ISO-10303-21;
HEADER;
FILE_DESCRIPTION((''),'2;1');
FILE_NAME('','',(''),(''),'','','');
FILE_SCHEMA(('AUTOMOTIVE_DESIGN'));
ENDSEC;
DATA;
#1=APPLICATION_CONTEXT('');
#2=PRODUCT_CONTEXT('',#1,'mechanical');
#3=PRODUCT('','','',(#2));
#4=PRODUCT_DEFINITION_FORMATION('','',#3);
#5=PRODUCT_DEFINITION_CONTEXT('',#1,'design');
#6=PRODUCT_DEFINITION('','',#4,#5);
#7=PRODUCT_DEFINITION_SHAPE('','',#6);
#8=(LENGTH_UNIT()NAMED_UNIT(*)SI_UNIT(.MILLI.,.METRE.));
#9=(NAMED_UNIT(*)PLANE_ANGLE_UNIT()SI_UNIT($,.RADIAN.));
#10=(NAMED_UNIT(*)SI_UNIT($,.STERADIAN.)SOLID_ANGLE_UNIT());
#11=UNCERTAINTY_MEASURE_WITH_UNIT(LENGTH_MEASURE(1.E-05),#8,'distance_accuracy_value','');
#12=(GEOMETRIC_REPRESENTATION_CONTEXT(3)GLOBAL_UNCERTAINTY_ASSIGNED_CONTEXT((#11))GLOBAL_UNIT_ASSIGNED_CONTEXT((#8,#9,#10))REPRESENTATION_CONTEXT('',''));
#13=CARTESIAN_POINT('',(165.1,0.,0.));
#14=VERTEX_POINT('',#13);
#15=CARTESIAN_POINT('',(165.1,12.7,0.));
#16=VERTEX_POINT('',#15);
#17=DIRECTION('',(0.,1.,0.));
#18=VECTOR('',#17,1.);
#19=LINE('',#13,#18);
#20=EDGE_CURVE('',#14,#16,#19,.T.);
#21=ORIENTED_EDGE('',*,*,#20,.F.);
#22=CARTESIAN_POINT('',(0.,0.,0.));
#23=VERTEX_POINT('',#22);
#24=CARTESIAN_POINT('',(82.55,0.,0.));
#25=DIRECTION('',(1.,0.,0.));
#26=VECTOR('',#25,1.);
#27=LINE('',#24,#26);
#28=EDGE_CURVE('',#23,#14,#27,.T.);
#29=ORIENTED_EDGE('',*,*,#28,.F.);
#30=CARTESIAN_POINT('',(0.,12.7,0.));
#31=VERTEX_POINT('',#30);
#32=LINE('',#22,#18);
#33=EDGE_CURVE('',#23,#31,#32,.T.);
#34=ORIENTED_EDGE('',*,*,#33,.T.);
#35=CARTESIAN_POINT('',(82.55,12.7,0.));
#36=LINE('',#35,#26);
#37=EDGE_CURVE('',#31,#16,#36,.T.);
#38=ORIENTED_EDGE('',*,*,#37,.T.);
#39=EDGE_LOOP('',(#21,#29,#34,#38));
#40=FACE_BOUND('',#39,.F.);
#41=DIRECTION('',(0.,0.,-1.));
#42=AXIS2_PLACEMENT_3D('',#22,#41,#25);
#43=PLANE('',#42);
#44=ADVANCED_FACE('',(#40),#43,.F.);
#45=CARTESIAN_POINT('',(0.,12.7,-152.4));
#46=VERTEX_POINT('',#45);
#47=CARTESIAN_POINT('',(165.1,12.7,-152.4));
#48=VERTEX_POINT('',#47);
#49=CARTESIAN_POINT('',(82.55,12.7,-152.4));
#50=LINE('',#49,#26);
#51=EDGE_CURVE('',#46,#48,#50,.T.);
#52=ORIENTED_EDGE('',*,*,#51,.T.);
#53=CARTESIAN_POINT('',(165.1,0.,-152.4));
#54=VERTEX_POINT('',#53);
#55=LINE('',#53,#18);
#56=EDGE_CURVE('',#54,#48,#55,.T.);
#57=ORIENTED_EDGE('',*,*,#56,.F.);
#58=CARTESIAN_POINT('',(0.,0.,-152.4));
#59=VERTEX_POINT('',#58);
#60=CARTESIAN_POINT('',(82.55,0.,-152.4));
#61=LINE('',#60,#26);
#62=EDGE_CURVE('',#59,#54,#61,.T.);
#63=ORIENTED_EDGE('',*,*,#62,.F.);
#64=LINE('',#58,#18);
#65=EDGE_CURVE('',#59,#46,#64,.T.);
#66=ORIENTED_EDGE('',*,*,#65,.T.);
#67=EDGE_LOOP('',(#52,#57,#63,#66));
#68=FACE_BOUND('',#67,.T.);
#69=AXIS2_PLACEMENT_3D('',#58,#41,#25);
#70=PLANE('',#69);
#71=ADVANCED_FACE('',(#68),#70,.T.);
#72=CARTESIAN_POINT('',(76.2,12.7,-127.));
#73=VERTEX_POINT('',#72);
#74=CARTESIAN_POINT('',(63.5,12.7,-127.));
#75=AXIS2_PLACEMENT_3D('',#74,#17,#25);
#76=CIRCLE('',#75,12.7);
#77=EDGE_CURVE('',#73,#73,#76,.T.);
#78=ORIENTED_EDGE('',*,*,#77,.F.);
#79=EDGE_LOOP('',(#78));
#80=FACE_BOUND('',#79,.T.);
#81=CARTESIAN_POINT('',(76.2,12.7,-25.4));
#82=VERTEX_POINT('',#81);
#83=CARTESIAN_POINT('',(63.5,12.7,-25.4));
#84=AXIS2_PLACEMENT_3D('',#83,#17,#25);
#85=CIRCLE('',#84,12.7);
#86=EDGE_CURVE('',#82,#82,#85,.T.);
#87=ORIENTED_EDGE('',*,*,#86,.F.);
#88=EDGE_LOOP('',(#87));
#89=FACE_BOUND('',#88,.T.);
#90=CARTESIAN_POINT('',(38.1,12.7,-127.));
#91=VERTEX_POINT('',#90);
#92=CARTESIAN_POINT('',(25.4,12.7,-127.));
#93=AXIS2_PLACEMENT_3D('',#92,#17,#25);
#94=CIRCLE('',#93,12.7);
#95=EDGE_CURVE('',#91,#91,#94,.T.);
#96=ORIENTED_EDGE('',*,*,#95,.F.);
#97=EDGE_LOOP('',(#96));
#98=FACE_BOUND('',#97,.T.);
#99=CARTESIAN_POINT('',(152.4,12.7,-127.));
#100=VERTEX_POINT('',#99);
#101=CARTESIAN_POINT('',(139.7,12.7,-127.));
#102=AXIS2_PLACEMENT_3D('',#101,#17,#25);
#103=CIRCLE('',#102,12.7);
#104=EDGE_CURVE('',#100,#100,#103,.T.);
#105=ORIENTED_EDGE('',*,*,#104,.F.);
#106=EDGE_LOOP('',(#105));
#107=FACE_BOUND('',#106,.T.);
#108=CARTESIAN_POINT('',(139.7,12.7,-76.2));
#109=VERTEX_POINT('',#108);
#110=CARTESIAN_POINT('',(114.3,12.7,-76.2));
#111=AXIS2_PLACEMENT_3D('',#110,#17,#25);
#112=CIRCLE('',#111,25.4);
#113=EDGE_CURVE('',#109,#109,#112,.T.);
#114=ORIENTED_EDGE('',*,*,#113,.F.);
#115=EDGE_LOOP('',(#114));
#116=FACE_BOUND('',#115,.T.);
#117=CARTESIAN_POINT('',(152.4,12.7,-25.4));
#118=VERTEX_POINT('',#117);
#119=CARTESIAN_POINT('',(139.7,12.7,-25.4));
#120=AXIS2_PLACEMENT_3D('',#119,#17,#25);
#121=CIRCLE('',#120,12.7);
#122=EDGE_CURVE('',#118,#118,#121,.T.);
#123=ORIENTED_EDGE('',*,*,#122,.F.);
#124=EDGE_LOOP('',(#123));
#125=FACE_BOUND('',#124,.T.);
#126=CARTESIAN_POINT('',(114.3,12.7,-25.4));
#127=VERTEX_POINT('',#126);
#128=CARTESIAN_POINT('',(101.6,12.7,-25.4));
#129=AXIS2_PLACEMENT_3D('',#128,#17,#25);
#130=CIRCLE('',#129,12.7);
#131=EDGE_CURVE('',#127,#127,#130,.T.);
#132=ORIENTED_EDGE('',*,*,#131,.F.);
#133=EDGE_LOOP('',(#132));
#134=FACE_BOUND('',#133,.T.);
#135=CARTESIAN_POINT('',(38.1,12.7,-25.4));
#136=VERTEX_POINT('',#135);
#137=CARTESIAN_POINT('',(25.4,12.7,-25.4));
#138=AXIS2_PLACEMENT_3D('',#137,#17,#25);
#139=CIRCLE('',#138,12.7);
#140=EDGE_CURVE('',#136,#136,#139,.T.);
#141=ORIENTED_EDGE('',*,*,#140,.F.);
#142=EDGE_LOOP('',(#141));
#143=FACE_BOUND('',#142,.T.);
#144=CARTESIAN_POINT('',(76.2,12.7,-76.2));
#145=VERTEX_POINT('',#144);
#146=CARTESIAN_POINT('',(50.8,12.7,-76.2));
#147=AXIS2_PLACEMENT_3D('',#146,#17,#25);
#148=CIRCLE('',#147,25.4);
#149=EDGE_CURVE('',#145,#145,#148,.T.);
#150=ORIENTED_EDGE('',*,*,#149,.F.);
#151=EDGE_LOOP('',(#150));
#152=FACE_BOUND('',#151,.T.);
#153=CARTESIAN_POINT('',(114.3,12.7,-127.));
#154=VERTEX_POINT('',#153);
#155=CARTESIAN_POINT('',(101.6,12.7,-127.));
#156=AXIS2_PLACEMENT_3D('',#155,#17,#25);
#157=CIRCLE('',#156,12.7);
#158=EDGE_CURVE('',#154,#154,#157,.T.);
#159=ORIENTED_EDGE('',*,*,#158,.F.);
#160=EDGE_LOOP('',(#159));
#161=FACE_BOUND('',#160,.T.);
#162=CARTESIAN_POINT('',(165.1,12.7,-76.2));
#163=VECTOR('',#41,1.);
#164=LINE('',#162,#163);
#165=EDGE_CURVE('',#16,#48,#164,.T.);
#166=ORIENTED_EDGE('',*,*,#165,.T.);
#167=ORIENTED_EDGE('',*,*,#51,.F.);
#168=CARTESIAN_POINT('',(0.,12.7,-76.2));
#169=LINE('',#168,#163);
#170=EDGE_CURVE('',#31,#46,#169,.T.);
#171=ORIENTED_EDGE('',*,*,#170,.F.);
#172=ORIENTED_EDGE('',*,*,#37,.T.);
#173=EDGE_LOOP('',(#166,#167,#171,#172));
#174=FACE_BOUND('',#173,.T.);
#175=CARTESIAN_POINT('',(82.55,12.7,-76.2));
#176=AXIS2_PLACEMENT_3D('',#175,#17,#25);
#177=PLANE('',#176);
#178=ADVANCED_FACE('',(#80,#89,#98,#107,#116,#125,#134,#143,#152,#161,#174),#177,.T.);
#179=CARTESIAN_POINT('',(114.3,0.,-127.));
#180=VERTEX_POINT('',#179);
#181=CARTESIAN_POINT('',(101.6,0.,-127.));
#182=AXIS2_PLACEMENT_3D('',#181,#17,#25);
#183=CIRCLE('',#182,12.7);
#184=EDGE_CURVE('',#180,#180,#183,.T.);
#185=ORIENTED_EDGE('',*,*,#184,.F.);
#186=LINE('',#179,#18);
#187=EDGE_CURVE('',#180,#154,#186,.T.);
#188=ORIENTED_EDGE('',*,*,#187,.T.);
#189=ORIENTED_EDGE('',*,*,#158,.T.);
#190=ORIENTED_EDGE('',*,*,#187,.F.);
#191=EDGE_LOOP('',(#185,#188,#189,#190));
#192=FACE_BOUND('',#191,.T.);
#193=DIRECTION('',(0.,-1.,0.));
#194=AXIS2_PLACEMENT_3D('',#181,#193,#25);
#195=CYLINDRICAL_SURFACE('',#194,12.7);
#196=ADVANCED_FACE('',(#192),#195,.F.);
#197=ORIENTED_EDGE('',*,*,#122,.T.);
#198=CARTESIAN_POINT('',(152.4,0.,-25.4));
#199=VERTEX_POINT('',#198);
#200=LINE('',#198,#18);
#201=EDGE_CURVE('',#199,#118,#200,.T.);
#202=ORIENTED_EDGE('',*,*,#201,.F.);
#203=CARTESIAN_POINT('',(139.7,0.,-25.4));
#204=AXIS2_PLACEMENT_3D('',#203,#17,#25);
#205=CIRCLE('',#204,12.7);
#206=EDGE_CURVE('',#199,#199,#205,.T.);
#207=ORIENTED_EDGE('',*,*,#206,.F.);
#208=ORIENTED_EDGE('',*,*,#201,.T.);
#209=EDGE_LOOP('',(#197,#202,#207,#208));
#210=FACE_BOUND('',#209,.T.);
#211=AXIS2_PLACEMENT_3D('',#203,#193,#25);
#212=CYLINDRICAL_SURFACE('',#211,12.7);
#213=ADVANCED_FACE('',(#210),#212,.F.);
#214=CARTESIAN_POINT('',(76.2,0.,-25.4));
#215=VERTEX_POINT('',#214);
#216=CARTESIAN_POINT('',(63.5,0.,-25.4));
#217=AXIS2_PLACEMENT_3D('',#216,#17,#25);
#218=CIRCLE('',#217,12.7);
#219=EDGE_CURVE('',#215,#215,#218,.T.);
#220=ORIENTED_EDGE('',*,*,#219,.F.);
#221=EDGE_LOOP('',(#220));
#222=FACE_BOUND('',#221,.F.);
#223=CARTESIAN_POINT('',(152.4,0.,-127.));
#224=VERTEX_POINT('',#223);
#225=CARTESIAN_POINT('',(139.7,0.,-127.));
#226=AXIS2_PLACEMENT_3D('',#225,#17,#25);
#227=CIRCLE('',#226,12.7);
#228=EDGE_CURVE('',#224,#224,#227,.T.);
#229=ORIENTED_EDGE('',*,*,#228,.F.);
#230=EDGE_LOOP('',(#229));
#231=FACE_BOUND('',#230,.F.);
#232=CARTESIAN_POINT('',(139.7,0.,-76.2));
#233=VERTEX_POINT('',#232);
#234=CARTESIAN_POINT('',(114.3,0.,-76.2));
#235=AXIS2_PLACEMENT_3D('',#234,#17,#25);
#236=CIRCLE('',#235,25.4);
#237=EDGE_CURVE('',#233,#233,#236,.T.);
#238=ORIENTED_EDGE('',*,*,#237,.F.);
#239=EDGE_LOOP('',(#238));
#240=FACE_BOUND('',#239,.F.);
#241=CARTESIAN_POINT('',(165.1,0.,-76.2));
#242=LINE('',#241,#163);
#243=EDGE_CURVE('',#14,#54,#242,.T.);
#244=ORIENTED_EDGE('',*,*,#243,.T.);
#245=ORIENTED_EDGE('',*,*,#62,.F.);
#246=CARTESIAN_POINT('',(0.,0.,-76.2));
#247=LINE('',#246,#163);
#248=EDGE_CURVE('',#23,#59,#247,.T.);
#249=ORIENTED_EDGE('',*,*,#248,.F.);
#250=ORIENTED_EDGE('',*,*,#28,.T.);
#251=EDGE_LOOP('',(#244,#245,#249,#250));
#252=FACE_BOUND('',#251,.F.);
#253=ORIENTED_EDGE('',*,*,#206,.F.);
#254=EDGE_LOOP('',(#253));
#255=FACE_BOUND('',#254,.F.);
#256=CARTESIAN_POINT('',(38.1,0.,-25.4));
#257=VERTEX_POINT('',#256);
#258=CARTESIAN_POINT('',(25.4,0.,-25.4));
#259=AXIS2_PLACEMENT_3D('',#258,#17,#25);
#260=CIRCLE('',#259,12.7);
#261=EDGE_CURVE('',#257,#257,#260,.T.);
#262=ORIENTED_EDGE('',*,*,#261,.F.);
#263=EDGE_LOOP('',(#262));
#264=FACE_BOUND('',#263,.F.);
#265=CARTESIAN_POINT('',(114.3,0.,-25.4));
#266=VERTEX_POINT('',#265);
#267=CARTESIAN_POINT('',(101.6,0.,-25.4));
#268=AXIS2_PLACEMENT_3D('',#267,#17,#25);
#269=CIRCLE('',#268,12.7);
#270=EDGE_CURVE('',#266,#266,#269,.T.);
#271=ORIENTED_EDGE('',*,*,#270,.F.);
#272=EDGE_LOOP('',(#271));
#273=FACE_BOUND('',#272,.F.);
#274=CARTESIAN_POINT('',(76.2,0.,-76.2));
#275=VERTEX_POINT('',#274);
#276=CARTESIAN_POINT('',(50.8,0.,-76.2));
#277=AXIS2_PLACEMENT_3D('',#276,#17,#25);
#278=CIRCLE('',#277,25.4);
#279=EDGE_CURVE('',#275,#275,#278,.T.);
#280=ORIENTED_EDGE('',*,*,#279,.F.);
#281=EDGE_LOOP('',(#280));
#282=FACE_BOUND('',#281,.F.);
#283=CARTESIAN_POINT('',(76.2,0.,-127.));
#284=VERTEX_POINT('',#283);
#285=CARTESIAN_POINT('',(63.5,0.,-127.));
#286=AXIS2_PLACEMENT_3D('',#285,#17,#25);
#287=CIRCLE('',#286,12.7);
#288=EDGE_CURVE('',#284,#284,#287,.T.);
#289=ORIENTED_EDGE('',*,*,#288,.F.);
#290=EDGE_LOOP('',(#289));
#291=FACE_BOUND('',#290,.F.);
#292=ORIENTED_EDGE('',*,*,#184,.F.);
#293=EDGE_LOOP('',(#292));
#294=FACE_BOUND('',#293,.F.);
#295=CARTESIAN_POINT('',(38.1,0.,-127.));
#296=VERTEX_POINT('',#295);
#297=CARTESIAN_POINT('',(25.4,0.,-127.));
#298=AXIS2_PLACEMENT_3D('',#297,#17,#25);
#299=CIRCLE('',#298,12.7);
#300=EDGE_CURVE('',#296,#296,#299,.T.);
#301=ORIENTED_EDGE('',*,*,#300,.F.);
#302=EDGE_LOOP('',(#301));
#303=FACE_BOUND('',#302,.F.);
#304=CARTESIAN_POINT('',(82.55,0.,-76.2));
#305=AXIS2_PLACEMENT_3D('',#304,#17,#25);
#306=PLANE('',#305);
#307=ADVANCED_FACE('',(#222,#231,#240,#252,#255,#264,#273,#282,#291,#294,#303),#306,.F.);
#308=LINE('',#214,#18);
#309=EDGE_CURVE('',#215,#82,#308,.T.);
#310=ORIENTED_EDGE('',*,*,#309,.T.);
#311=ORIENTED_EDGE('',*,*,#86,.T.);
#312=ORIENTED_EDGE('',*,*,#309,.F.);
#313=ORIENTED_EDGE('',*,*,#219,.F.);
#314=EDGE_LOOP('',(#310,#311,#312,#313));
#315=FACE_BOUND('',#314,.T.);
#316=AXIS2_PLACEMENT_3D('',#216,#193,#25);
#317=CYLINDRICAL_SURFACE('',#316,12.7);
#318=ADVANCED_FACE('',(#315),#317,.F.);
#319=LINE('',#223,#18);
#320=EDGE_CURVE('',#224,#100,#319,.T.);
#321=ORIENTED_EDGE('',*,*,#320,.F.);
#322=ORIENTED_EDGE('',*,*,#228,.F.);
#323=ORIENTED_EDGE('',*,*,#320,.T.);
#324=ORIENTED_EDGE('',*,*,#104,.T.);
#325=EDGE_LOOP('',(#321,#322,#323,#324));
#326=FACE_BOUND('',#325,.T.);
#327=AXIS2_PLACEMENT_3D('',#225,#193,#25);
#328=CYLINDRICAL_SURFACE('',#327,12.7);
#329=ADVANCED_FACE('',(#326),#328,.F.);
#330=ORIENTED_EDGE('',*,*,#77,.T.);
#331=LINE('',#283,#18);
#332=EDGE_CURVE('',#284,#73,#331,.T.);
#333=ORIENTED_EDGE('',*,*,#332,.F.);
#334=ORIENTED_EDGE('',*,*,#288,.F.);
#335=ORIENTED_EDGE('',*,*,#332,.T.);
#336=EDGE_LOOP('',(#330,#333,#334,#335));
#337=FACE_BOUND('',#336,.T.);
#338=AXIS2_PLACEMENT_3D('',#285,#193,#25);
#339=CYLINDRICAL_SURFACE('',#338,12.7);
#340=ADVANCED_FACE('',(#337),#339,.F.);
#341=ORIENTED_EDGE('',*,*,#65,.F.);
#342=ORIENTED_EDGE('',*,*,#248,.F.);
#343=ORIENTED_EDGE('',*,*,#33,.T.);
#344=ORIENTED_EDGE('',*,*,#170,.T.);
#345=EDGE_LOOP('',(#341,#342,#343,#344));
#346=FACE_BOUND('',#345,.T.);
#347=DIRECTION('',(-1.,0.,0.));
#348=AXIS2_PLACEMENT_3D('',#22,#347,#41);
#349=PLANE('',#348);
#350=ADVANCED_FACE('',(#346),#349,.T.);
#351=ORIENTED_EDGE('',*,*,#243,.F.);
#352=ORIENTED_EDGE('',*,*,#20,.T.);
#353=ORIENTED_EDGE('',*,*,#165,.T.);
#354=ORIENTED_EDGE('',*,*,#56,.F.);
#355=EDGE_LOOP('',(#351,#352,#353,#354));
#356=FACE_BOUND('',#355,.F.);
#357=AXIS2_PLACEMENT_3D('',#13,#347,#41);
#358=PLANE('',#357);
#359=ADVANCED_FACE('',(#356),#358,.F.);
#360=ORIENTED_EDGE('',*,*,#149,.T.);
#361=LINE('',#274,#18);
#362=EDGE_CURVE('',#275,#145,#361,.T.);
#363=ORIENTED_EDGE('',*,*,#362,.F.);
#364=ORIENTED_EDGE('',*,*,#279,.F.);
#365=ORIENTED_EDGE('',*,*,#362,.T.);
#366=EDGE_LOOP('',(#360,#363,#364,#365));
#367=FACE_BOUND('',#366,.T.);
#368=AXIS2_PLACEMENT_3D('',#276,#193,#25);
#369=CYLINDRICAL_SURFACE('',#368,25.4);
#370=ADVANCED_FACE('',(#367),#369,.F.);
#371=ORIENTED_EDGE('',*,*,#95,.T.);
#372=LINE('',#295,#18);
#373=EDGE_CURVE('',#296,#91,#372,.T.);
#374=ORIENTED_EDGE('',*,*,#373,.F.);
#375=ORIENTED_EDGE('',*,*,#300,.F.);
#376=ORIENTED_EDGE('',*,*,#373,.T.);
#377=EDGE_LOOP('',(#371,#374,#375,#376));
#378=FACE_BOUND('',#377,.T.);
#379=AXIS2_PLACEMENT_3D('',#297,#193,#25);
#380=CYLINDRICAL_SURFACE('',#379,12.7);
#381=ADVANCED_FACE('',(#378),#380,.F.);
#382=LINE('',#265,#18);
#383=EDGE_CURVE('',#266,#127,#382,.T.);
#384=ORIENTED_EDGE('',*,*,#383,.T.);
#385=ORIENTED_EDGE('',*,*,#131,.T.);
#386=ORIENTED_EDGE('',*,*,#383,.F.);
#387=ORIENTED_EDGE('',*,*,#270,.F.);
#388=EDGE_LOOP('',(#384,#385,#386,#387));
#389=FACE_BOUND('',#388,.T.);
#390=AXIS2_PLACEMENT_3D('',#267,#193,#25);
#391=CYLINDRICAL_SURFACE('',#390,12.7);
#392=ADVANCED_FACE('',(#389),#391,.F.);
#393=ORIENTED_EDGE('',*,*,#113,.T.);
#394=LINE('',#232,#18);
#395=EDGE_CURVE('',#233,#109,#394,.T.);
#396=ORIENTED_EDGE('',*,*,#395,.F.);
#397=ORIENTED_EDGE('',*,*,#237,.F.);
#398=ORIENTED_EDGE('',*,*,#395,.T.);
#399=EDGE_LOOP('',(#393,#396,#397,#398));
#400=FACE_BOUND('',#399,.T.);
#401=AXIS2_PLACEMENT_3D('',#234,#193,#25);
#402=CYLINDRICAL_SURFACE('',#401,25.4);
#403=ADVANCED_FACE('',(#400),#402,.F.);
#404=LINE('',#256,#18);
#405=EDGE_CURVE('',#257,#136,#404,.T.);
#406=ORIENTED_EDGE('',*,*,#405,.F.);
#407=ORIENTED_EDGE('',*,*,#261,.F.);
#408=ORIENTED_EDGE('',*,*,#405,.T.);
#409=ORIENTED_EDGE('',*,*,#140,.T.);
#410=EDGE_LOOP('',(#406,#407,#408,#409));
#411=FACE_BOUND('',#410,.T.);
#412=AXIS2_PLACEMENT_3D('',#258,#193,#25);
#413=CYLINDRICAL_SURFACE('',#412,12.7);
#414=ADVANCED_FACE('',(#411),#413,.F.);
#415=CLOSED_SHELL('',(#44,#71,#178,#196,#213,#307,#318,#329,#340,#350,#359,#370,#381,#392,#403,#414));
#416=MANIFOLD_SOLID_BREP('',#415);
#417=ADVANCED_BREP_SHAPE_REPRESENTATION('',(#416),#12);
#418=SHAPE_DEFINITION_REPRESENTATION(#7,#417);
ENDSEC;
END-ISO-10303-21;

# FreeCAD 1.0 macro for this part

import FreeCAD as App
import Part
import Sketcher
Q = App.Units.Quantity

doc = App.newDocument("Part")
body = doc.addObject("PartDesign::Body", "Body")

sketch1 = doc.addObject("Sketcher::SketchObject", "Sketch")
body.addObject(sketch1)
sketch1.AttachmentSupport = (doc.XZ_Plane, [""])
sketch1.MapMode = "FlatFace"
sketch1.addGeometry(Part.LineSegment(App.Vector(0, -152.4, 0), App.Vector(0, 0, 0)), False)
sketch1.addGeometry(Part.LineSegment(App.Vector(0, 0, 0), App.Vector(165.1, 0, 0)), False)
sketch1.addGeometry(Part.LineSegment(App.Vector(165.1, 0, 0), App.Vector(165.1, -152.4, 0)), False)
sketch1.addGeometry(Part.LineSegment(App.Vector(165.1, -152.4, 0), App.Vector(0, -152.4, 0)), False)
sketch1.addGeometry(Part.Circle(App.Vector(25.4, -25.4, 0), App.Vector(0, 0, 1), 12.7), False)
sketch1.addGeometry(Part.Circle(App.Vector(63.5, -25.4, 0), App.Vector(0, 0, 1), 12.7), False)
sketch1.addGeometry(Part.Circle(App.Vector(101.6, -25.4, 0), App.Vector(0, 0, 1), 12.7), False)
sketch1.addGeometry(Part.Circle(App.Vector(139.7, -25.4, 0), App.Vector(0, 0, 1), 12.7), False)
sketch1.addGeometry(Part.Circle(App.Vector(50.8, -76.2, 0), App.Vector(0, 0, 1), 25.4), False)
sketch1.addGeometry(Part.Circle(App.Vector(25.4, -127, 0), App.Vector(0, 0, 1), 12.7), False)
sketch1.addGeometry(Part.Circle(App.Vector(63.5, -127, 0), App.Vector(0, 0, 1), 12.7), False)
sketch1.addGeometry(Part.Circle(App.Vector(114.3, -76.2, 0), App.Vector(0, 0, 1), 25.4), False)
sketch1.addGeometry(Part.Circle(App.Vector(101.6, -127, 0), App.Vector(0, 0, 1), 12.7), False)
sketch1.addGeometry(Part.Circle(App.Vector(139.7, -127, 0), App.Vector(0, 0, 1), 12.7), False)
sketch1.addConstraint(Sketcher.Constraint("Coincident", 0, 2, 1, 1))
sketch1.addConstraint(Sketcher.Constraint("Coincident", 1, 2, 2, 1))
sketch1.addConstraint(Sketcher.Constraint("Coincident", 2, 2, 3, 1))
sketch1.addConstraint(Sketcher.Constraint("Coincident", 3, 2, 0, 1))
sketch1.addConstraint(Sketcher.Constraint("Vertical", 0))
sketch1.addConstraint(Sketcher.Constraint("Horizontal", 1))
sketch1.addConstraint(Sketcher.Constraint("Vertical", 2))
sketch1.addConstraint(Sketcher.Constraint("Horizontal", 3))
sketch1.addConstraint(Sketcher.Constraint("Coincident", 0, 2, -1, 1))
sketch1.addConstraint(Sketcher.Constraint("Equal", 4, 5))
sketch1.addConstraint(Sketcher.Constraint("Equal", 5, 6))
sketch1.addConstraint(Sketcher.Constraint("Equal", 6, 7))
sketch1.addConstraint(Sketcher.Constraint("Equal", 7, 9))
sketch1.addConstraint(Sketcher.Constraint("Equal", 9, 10))
sketch1.addConstraint(Sketcher.Constraint("Equal", 8, 11))
sketch1.addConstraint(Sketcher.Constraint("Equal", 10, 12))
sketch1.addConstraint(Sketcher.Constraint("Equal", 12, 13))
sketch1.addConstraint(Sketcher.Constraint("Horizontal", 4, 3, 5, 3))
sketch1.addConstraint(Sketcher.Constraint("Horizontal", 5, 3, 6, 3))
sketch1.addConstraint(Sketcher.Constraint("Horizontal", 6, 3, 7, 3))
sketch1.addConstraint(Sketcher.Constraint("Horizontal", 9, 3, 10, 3))
sketch1.addConstraint(Sketcher.Constraint("Horizontal", 8, 3, 11, 3))
sketch1.addConstraint(Sketcher.Constraint("Horizontal", 10, 3, 12, 3))
sketch1.addConstraint(Sketcher.Constraint("Horizontal", 12, 3, 13, 3))
sketch1.addConstraint(Sketcher.Constraint("Vertical", 4, 3, 9, 3))
sketch1.addConstraint(Sketcher.Constraint("Vertical", 5, 3, 10, 3))
sketch1.addConstraint(Sketcher.Constraint("Vertical", 6, 3, 12, 3))
sketch1.addConstraint(Sketcher.Constraint("Vertical", 7, 3, 13, 3))
sketch1.addConstraint(Sketcher.Constraint("Diameter", 4, Q("1 in")))
sketch1.addConstraint(Sketcher.Constraint("Diameter", 8, Q("2 in")))
sketch1.addConstraint(Sketcher.Constraint("DistanceY", 0, 1, 0, 2, Q("6 in")))
sketch1.addConstraint(Sketcher.Constraint("DistanceX", 1, 1, 1, 2, Q("6.5 in")))
sketch1.addConstraint(Sketcher.Constraint("DistanceX", -1, 1, 4, 3, Q("1 in")))
sketch1.addConstraint(Sketcher.Constraint("DistanceY", 4, 3, -1, 1, Q("1 in")))
sketch1.addConstraint(Sketcher.Constraint("DistanceX", -1, 1, 6, 3, Q("4 in")))
sketch1.addConstraint(Sketcher.Constraint("DistanceX", -1, 1, 8, 3, Q("2 in")))
sketch1.addConstraint(Sketcher.Constraint("DistanceY", 8, 3, -1, 1, Q("3 in")))
sketch1.addConstraint(Sketcher.Constraint("DistanceY", 9, 3, -1, 1, Q("5 in")))
sketch1.addConstraint(Sketcher.Constraint("DistanceX", 5, 3, 7, 3, Q("3 in")))
sketch1.addConstraint(Sketcher.Constraint("DistanceX", 11, 3, 7, 3, Q("1 in")))
sketch1.addConstraint(Sketcher.Constraint("DistanceX", 7, 3, 1, 2, Q("1 in")))
pad1 = doc.addObject("PartDesign::Pad", "Pad")
body.addObject(pad1)
pad1.Profile = sketch1
pad1.Length = Q("0.5 in")
pad1.Reversed = True

doc.recompute()
